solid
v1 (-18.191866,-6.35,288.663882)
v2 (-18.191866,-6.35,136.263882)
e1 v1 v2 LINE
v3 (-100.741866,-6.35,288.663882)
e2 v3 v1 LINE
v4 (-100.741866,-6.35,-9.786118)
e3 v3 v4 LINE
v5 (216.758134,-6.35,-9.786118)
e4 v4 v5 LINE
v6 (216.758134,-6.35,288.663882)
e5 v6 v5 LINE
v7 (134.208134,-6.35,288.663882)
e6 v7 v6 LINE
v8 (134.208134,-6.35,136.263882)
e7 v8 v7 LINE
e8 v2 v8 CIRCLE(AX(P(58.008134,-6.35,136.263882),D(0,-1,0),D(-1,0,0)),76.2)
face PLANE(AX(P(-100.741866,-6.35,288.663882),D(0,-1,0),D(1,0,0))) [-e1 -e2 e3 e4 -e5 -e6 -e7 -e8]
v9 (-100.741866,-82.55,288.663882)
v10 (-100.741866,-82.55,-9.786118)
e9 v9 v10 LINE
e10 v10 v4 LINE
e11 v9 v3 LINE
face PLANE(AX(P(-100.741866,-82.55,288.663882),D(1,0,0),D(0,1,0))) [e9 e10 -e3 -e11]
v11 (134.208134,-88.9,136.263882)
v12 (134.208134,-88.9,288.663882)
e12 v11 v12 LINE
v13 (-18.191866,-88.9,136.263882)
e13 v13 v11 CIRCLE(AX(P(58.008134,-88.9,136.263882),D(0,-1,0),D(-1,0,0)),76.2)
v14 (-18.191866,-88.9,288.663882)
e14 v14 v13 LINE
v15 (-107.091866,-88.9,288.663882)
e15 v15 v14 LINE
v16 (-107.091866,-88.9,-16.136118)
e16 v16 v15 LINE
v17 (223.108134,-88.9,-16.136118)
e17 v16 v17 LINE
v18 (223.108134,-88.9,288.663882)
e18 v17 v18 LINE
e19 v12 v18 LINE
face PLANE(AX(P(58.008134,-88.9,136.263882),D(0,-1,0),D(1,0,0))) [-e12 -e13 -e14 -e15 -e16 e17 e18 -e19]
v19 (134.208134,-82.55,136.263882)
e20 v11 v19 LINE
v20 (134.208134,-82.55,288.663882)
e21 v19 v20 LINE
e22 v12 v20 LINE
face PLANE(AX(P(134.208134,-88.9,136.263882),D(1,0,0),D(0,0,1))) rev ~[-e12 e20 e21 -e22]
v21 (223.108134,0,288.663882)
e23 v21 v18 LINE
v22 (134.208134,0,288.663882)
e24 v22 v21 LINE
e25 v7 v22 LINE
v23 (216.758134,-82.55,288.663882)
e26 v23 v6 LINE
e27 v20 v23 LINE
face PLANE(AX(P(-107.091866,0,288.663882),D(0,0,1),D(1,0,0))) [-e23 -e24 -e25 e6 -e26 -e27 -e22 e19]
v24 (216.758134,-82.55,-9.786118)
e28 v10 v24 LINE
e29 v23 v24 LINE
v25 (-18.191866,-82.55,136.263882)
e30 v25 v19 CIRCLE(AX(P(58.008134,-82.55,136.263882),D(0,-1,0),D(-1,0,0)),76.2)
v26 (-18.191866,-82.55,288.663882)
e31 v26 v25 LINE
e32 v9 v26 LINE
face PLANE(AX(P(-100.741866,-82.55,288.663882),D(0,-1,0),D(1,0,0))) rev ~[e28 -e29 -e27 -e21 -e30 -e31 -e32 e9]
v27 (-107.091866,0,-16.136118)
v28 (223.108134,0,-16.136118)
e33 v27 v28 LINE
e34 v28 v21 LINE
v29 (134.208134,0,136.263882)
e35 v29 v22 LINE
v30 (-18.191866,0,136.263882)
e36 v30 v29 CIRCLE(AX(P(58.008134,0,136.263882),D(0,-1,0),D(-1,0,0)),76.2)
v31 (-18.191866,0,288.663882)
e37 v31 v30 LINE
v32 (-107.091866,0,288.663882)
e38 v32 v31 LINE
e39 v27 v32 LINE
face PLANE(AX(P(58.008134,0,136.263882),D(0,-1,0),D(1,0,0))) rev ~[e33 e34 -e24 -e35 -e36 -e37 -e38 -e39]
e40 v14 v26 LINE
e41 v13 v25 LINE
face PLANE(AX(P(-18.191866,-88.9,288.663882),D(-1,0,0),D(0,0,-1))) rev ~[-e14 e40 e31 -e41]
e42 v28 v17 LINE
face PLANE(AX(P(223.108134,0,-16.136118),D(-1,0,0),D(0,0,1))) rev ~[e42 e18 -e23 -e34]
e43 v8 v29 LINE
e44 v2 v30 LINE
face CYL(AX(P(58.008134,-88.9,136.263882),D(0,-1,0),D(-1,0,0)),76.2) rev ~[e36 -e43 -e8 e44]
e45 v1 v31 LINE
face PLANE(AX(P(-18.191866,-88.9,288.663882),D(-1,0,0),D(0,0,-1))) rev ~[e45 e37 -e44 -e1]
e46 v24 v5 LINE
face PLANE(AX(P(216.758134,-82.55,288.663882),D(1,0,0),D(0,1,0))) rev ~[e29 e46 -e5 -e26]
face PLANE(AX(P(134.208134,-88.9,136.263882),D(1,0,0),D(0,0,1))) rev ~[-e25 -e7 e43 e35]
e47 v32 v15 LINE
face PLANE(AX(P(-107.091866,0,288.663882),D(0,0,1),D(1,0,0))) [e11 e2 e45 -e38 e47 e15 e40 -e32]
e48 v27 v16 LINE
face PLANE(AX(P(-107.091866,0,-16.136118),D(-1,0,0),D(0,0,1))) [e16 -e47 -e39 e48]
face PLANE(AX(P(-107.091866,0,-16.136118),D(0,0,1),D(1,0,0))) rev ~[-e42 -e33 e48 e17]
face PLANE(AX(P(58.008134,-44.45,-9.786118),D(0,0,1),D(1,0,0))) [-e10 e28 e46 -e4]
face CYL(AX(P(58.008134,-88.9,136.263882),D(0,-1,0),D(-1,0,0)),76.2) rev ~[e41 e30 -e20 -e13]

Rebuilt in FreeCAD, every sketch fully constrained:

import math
import FreeCAD as App
import Part
import Sketcher
Q = App.Units.Quantity


def add_polygon(sketch, points):
    """Adds a closed chain of lines whose ends are joined by coincident constraints."""
    first, n = sketch.GeometryCount, len(points)
    for a, b in zip(points, points[1:] + points[:1]):
        sketch.addGeometry(Part.LineSegment(App.Vector(*a, 0), App.Vector(*b, 0)), False)
    for i in range(n):
        sketch.addConstraint(Sketcher.Constraint("Coincident", first + i, 2, first + (i + 1) % n, 1))

doc = App.newDocument("Part")
body = doc.addObject("PartDesign::Body", "Body")

sketch1 = body.newObject("Sketcher::SketchObject", "Sketch")
sketch1.AttachmentSupport = (doc.getObject("XZ_Plane"), [""])
sketch1.MapMode = "FlatFace"
add_polygon(sketch1, [(-107, 289), (-107, -16), (223, -16), (223, 289)])
sketch1.addConstraint([
    Sketcher.Constraint("Vertical", 0),
    Sketcher.Constraint("Horizontal", 1),
    Sketcher.Constraint("Vertical", 2),
    Sketcher.Constraint("Horizontal", 3),
    Sketcher.Constraint("DistanceX", 1, 1, 1, 2, Q("13 in")),
    Sketcher.Constraint("DistanceY", 0, 2, 0, 1, Q("12 in")),
    Sketcher.Constraint("DistanceY", 0, 2, -1, 1, 16.136118),
    Sketcher.Constraint("DistanceX", 0, 2, -1, 1, 107.091866),
])
pad1 = body.newObject("PartDesign::Pad", "Pad")
pad1.Profile = sketch1
pad1.Length = Q("3.5 in")

sketch2 = body.newObject("Sketcher::SketchObject", "Sketch001")
sketch2.AttachmentSupport = (doc.getObject("XY_Plane"), [""])
sketch2.MapMode = "FlatFace"
sketch2.AttachmentOffset = App.Placement(App.Vector(0, 0, 288.663882), App.Rotation())
add_polygon(sketch2, [(-101, -6), (-101, -83), (217, -83), (217, -6)])
sketch2.addConstraint([
    Sketcher.Constraint("Vertical", 0),
    Sketcher.Constraint("Horizontal", 1),
    Sketcher.Constraint("Vertical", 2),
    Sketcher.Constraint("Horizontal", 3),
    Sketcher.Constraint("DistanceY", 0, 2, 0, 1, Q("3 in")),
    Sketcher.Constraint("DistanceX", 1, 1, 1, 2, Q("12.5 in")),
    Sketcher.Constraint("DistanceY", 0, 2, -1, 1, Q("3.25 in")),
    Sketcher.Constraint("DistanceX", 0, 2, -1, 1, 100.741866),
])
pocket1 = body.newObject("PartDesign::Pocket", "Pocket")
pocket1.Profile = sketch2
pocket1.Length = Q("11.75 in")

sketch3 = body.newObject("Sketcher::SketchObject", "Sketch002")
sketch3.AttachmentSupport = (doc.getObject("XZ_Plane"), [""])
sketch3.MapMode = "FlatFace"
sketch3.AttachmentOffset = App.Placement(App.Vector(0, 0, 3.5 * 25.4), App.Rotation())
sketch3.addGeometry([
    Part.LineSegment(App.Vector(-18, 289, 0), App.Vector(-18, 136, 0)),
    Part.ArcOfCircle(Part.Circle(App.Vector(58, 136, 0), App.Vector(0, 0, 1), 76), math.radians(180), math.radians(360)),
    Part.LineSegment(App.Vector(134, 136, 0), App.Vector(134, 289, 0)),
    Part.LineSegment(App.Vector(134, 289, 0), App.Vector(-18, 289, 0)),
], False)
sketch3.addConstraint([
    Sketcher.Constraint("Tangent", 0, 2, 1, 1),
    Sketcher.Constraint("Tangent", 1, 2, 2, 1),
    Sketcher.Constraint("Coincident", 2, 2, 3, 1),
    Sketcher.Constraint("Coincident", 3, 2, 0, 1),
    Sketcher.Constraint("Vertical", 0),
    Sketcher.Constraint("Vertical", 2),
    Sketcher.Constraint("Horizontal", 3),
    Sketcher.Constraint("Equal", 3, 0),
    Sketcher.Constraint("Radius", 1, Q("3 in")),
    Sketcher.Constraint("DistanceY", -1, 1, 1, 3, 136.263882),
    Sketcher.Constraint("DistanceX", -1, 1, 1, 3, 58.008134),
])
pocket2 = body.newObject("PartDesign::Pocket", "Pocket001")
pocket2.Profile = sketch3
pocket2.Length = Q("5 in")

doc.recompute()
